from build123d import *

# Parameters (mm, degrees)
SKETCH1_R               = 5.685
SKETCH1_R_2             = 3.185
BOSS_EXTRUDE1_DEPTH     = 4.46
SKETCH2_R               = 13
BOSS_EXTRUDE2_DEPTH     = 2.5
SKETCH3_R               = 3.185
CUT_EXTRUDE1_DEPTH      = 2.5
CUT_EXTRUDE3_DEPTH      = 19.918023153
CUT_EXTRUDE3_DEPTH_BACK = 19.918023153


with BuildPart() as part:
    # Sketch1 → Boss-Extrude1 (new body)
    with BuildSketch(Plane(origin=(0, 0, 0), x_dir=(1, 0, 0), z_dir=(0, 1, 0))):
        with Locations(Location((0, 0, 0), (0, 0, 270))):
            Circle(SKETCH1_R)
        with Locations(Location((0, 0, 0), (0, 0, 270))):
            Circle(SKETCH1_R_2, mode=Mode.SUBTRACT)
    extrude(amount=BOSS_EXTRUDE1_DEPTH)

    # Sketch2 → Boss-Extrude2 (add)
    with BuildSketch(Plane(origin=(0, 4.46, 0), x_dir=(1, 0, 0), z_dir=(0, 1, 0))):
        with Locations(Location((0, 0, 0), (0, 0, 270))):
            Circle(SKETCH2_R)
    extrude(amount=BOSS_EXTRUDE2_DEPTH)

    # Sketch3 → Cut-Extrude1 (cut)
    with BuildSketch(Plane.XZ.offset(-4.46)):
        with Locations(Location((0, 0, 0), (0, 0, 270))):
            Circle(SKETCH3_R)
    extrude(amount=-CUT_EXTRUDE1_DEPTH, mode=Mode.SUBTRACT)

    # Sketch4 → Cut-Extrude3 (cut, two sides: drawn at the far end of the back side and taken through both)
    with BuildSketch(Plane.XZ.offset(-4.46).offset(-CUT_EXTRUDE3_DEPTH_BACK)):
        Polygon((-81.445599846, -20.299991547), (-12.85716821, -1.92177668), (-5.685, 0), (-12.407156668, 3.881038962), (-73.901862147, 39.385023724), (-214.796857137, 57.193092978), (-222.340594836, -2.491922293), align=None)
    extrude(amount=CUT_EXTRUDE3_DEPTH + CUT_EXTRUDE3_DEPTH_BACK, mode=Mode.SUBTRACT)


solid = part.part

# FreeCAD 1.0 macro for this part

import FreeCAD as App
import Part
import Sketcher
Q = App.Units.Quantity


def add_polygon(sketch, points):
    """Adds a closed chain of lines whose ends are joined by coincident constraints."""
    first, n = sketch.GeometryCount, len(points)
    for a, b in zip(points, points[1:] + points[:1]):
        sketch.addGeometry(Part.LineSegment(App.Vector(*a, 0), App.Vector(*b, 0)), False)
    for i in range(n):
        sketch.addConstraint(Sketcher.Constraint("Coincident", first + i, 2, first + (i + 1) % n, 1))

doc = App.newDocument("Part")
body = doc.addObject("PartDesign::Body", "Body")

# Sketch on XZ plane
sketch1 = doc.addObject("Sketcher::SketchObject", "Sketch")
body.addObject(sketch1)
sketch1.AttachmentSupport = (doc.XZ_Plane, [""])
sketch1.MapMode = "FlatFace"
sketch1.addGeometry(Part.Circle(App.Vector(0, 0, 0), App.Vector(0, 0, 1), 5.7), False)
sketch1.addGeometry(Part.Circle(App.Vector(0, 0, 0), App.Vector(0, 0, 1), 3.2), False)
sketch1.addConstraint(Sketcher.Constraint("Coincident", 0, 3, -1, 1))
sketch1.addConstraint(Sketcher.Constraint("Coincident", 1, 3, -1, 1))
sketch1.addConstraint(Sketcher.Constraint("Diameter", 0, Q("11.37 mm")))
sketch1.addConstraint(Sketcher.Constraint("Diameter", 1, Q("6.37 mm")))
pad1 = doc.addObject("PartDesign::Pad", "Pad")
body.addObject(pad1)
pad1.Profile = sketch1
pad1.Length = 4.46
pad1.Reversed = True

# Sketch on XZ plane
sketch2 = doc.addObject("Sketcher::SketchObject", "Sketch001")
body.addObject(sketch2)
sketch2.AttachmentSupport = (doc.XZ_Plane, [""])
sketch2.MapMode = "FlatFace"
sketch2.AttachmentOffset = App.Placement(App.Vector(0, 0, -4.46), App.Rotation())
sketch2.addGeometry(Part.Circle(App.Vector(0, 0, 0), App.Vector(0, 0, 1), 13), False)
sketch2.addConstraint(Sketcher.Constraint("Coincident", 0, 3, -1, 1))
sketch2.addConstraint(Sketcher.Constraint("Diameter", 0, Q("26 mm")))
pad2 = doc.addObject("PartDesign::Pad", "Pad001")
body.addObject(pad2)
pad2.Profile = sketch2
pad2.Length = 2.5
pad2.Reversed = True

# Sketch on XZ plane
sketch3 = doc.addObject("Sketcher::SketchObject", "Sketch002")
body.addObject(sketch3)
sketch3.AttachmentSupport = (doc.XZ_Plane, [""])
sketch3.MapMode = "FlatFace"
sketch3.AttachmentOffset = App.Placement(App.Vector(0, 0, -4.46), App.Rotation())
sketch3.addGeometry(Part.Circle(App.Vector(0, 0, 0), App.Vector(0, 0, 1), 3.2), False)
sketch3.addConstraint(Sketcher.Constraint("Coincident", 0, 3, -1, 1))
sketch3.addConstraint(Sketcher.Constraint("Diameter", 0, Q("6.37 mm")))
pocket1 = doc.addObject("PartDesign::Pocket", "Pocket")
body.addObject(pocket1)
pocket1.Profile = sketch3
pocket1.Length = 2.5

# Sketch on XZ plane
sketch4 = doc.addObject("Sketcher::SketchObject", "Sketch003")
body.addObject(sketch4)
sketch4.AttachmentSupport = (doc.XZ_Plane, [""])
sketch4.MapMode = "FlatFace"
sketch4.AttachmentOffset = App.Placement(App.Vector(0, 0, -4.46), App.Rotation())
add_polygon(sketch4, [(-81, -20), (-13, -2), (-6, 0), (-12, 4), (-74, 39), (-215, 57), (-222, -2)])  # lines 0-6
sketch4.addConstraint(Sketcher.Constraint("PointOnObject", 1, 2, -1))
sketch4.addConstraint(Sketcher.Constraint("Parallel", 0, 1))
sketch4.addConstraint(Sketcher.Constraint("Parallel", 2, 3))
sketch4.addConstraint(Sketcher.Constraint("Perpendicular", 4, 5))
sketch4.addConstraint(Sketcher.Constraint("Perpendicular", 5, 6))
sketch4.addConstraint(Sketcher.Constraint("Equal", 0, 3))
sketch4.addConstraint(Sketcher.Constraint("Equal", 4, 6))
sketch4.addConstraint(Sketcher.Constraint("Angle", 0, Q("15 deg")))
sketch4.addConstraint(Sketcher.Constraint("Angle", 2, Q("150 deg")))
sketch4.addConstraint(Sketcher.Constraint("DistanceX", 1, 2, -1, 1, Q("5.685 mm")))
sketch4.addConstraint(Sketcher.Constraint("DistanceX", 6, 2, -1, 1, Q("81.4456 mm")))
sketch4.addConstraint(Sketcher.Constraint("DistanceY", 0, 2, 3, 2, Q("41.3068 mm")))
sketch4.addConstraint(Sketcher.Constraint("DistanceX", 4, 2, 2, 2, Q("202.3897 mm")))
sketch4.addConstraint(Sketcher.Constraint("Distance", 0, Q("71.00797 mm")))
pocket2 = doc.addObject("PartDesign::Pocket", "Pocket001")
body.addObject(pocket2)
pocket2.Profile = sketch4
pocket2.Type = "ThroughAll"
pocket2.Midplane = True

doc.recompute()
